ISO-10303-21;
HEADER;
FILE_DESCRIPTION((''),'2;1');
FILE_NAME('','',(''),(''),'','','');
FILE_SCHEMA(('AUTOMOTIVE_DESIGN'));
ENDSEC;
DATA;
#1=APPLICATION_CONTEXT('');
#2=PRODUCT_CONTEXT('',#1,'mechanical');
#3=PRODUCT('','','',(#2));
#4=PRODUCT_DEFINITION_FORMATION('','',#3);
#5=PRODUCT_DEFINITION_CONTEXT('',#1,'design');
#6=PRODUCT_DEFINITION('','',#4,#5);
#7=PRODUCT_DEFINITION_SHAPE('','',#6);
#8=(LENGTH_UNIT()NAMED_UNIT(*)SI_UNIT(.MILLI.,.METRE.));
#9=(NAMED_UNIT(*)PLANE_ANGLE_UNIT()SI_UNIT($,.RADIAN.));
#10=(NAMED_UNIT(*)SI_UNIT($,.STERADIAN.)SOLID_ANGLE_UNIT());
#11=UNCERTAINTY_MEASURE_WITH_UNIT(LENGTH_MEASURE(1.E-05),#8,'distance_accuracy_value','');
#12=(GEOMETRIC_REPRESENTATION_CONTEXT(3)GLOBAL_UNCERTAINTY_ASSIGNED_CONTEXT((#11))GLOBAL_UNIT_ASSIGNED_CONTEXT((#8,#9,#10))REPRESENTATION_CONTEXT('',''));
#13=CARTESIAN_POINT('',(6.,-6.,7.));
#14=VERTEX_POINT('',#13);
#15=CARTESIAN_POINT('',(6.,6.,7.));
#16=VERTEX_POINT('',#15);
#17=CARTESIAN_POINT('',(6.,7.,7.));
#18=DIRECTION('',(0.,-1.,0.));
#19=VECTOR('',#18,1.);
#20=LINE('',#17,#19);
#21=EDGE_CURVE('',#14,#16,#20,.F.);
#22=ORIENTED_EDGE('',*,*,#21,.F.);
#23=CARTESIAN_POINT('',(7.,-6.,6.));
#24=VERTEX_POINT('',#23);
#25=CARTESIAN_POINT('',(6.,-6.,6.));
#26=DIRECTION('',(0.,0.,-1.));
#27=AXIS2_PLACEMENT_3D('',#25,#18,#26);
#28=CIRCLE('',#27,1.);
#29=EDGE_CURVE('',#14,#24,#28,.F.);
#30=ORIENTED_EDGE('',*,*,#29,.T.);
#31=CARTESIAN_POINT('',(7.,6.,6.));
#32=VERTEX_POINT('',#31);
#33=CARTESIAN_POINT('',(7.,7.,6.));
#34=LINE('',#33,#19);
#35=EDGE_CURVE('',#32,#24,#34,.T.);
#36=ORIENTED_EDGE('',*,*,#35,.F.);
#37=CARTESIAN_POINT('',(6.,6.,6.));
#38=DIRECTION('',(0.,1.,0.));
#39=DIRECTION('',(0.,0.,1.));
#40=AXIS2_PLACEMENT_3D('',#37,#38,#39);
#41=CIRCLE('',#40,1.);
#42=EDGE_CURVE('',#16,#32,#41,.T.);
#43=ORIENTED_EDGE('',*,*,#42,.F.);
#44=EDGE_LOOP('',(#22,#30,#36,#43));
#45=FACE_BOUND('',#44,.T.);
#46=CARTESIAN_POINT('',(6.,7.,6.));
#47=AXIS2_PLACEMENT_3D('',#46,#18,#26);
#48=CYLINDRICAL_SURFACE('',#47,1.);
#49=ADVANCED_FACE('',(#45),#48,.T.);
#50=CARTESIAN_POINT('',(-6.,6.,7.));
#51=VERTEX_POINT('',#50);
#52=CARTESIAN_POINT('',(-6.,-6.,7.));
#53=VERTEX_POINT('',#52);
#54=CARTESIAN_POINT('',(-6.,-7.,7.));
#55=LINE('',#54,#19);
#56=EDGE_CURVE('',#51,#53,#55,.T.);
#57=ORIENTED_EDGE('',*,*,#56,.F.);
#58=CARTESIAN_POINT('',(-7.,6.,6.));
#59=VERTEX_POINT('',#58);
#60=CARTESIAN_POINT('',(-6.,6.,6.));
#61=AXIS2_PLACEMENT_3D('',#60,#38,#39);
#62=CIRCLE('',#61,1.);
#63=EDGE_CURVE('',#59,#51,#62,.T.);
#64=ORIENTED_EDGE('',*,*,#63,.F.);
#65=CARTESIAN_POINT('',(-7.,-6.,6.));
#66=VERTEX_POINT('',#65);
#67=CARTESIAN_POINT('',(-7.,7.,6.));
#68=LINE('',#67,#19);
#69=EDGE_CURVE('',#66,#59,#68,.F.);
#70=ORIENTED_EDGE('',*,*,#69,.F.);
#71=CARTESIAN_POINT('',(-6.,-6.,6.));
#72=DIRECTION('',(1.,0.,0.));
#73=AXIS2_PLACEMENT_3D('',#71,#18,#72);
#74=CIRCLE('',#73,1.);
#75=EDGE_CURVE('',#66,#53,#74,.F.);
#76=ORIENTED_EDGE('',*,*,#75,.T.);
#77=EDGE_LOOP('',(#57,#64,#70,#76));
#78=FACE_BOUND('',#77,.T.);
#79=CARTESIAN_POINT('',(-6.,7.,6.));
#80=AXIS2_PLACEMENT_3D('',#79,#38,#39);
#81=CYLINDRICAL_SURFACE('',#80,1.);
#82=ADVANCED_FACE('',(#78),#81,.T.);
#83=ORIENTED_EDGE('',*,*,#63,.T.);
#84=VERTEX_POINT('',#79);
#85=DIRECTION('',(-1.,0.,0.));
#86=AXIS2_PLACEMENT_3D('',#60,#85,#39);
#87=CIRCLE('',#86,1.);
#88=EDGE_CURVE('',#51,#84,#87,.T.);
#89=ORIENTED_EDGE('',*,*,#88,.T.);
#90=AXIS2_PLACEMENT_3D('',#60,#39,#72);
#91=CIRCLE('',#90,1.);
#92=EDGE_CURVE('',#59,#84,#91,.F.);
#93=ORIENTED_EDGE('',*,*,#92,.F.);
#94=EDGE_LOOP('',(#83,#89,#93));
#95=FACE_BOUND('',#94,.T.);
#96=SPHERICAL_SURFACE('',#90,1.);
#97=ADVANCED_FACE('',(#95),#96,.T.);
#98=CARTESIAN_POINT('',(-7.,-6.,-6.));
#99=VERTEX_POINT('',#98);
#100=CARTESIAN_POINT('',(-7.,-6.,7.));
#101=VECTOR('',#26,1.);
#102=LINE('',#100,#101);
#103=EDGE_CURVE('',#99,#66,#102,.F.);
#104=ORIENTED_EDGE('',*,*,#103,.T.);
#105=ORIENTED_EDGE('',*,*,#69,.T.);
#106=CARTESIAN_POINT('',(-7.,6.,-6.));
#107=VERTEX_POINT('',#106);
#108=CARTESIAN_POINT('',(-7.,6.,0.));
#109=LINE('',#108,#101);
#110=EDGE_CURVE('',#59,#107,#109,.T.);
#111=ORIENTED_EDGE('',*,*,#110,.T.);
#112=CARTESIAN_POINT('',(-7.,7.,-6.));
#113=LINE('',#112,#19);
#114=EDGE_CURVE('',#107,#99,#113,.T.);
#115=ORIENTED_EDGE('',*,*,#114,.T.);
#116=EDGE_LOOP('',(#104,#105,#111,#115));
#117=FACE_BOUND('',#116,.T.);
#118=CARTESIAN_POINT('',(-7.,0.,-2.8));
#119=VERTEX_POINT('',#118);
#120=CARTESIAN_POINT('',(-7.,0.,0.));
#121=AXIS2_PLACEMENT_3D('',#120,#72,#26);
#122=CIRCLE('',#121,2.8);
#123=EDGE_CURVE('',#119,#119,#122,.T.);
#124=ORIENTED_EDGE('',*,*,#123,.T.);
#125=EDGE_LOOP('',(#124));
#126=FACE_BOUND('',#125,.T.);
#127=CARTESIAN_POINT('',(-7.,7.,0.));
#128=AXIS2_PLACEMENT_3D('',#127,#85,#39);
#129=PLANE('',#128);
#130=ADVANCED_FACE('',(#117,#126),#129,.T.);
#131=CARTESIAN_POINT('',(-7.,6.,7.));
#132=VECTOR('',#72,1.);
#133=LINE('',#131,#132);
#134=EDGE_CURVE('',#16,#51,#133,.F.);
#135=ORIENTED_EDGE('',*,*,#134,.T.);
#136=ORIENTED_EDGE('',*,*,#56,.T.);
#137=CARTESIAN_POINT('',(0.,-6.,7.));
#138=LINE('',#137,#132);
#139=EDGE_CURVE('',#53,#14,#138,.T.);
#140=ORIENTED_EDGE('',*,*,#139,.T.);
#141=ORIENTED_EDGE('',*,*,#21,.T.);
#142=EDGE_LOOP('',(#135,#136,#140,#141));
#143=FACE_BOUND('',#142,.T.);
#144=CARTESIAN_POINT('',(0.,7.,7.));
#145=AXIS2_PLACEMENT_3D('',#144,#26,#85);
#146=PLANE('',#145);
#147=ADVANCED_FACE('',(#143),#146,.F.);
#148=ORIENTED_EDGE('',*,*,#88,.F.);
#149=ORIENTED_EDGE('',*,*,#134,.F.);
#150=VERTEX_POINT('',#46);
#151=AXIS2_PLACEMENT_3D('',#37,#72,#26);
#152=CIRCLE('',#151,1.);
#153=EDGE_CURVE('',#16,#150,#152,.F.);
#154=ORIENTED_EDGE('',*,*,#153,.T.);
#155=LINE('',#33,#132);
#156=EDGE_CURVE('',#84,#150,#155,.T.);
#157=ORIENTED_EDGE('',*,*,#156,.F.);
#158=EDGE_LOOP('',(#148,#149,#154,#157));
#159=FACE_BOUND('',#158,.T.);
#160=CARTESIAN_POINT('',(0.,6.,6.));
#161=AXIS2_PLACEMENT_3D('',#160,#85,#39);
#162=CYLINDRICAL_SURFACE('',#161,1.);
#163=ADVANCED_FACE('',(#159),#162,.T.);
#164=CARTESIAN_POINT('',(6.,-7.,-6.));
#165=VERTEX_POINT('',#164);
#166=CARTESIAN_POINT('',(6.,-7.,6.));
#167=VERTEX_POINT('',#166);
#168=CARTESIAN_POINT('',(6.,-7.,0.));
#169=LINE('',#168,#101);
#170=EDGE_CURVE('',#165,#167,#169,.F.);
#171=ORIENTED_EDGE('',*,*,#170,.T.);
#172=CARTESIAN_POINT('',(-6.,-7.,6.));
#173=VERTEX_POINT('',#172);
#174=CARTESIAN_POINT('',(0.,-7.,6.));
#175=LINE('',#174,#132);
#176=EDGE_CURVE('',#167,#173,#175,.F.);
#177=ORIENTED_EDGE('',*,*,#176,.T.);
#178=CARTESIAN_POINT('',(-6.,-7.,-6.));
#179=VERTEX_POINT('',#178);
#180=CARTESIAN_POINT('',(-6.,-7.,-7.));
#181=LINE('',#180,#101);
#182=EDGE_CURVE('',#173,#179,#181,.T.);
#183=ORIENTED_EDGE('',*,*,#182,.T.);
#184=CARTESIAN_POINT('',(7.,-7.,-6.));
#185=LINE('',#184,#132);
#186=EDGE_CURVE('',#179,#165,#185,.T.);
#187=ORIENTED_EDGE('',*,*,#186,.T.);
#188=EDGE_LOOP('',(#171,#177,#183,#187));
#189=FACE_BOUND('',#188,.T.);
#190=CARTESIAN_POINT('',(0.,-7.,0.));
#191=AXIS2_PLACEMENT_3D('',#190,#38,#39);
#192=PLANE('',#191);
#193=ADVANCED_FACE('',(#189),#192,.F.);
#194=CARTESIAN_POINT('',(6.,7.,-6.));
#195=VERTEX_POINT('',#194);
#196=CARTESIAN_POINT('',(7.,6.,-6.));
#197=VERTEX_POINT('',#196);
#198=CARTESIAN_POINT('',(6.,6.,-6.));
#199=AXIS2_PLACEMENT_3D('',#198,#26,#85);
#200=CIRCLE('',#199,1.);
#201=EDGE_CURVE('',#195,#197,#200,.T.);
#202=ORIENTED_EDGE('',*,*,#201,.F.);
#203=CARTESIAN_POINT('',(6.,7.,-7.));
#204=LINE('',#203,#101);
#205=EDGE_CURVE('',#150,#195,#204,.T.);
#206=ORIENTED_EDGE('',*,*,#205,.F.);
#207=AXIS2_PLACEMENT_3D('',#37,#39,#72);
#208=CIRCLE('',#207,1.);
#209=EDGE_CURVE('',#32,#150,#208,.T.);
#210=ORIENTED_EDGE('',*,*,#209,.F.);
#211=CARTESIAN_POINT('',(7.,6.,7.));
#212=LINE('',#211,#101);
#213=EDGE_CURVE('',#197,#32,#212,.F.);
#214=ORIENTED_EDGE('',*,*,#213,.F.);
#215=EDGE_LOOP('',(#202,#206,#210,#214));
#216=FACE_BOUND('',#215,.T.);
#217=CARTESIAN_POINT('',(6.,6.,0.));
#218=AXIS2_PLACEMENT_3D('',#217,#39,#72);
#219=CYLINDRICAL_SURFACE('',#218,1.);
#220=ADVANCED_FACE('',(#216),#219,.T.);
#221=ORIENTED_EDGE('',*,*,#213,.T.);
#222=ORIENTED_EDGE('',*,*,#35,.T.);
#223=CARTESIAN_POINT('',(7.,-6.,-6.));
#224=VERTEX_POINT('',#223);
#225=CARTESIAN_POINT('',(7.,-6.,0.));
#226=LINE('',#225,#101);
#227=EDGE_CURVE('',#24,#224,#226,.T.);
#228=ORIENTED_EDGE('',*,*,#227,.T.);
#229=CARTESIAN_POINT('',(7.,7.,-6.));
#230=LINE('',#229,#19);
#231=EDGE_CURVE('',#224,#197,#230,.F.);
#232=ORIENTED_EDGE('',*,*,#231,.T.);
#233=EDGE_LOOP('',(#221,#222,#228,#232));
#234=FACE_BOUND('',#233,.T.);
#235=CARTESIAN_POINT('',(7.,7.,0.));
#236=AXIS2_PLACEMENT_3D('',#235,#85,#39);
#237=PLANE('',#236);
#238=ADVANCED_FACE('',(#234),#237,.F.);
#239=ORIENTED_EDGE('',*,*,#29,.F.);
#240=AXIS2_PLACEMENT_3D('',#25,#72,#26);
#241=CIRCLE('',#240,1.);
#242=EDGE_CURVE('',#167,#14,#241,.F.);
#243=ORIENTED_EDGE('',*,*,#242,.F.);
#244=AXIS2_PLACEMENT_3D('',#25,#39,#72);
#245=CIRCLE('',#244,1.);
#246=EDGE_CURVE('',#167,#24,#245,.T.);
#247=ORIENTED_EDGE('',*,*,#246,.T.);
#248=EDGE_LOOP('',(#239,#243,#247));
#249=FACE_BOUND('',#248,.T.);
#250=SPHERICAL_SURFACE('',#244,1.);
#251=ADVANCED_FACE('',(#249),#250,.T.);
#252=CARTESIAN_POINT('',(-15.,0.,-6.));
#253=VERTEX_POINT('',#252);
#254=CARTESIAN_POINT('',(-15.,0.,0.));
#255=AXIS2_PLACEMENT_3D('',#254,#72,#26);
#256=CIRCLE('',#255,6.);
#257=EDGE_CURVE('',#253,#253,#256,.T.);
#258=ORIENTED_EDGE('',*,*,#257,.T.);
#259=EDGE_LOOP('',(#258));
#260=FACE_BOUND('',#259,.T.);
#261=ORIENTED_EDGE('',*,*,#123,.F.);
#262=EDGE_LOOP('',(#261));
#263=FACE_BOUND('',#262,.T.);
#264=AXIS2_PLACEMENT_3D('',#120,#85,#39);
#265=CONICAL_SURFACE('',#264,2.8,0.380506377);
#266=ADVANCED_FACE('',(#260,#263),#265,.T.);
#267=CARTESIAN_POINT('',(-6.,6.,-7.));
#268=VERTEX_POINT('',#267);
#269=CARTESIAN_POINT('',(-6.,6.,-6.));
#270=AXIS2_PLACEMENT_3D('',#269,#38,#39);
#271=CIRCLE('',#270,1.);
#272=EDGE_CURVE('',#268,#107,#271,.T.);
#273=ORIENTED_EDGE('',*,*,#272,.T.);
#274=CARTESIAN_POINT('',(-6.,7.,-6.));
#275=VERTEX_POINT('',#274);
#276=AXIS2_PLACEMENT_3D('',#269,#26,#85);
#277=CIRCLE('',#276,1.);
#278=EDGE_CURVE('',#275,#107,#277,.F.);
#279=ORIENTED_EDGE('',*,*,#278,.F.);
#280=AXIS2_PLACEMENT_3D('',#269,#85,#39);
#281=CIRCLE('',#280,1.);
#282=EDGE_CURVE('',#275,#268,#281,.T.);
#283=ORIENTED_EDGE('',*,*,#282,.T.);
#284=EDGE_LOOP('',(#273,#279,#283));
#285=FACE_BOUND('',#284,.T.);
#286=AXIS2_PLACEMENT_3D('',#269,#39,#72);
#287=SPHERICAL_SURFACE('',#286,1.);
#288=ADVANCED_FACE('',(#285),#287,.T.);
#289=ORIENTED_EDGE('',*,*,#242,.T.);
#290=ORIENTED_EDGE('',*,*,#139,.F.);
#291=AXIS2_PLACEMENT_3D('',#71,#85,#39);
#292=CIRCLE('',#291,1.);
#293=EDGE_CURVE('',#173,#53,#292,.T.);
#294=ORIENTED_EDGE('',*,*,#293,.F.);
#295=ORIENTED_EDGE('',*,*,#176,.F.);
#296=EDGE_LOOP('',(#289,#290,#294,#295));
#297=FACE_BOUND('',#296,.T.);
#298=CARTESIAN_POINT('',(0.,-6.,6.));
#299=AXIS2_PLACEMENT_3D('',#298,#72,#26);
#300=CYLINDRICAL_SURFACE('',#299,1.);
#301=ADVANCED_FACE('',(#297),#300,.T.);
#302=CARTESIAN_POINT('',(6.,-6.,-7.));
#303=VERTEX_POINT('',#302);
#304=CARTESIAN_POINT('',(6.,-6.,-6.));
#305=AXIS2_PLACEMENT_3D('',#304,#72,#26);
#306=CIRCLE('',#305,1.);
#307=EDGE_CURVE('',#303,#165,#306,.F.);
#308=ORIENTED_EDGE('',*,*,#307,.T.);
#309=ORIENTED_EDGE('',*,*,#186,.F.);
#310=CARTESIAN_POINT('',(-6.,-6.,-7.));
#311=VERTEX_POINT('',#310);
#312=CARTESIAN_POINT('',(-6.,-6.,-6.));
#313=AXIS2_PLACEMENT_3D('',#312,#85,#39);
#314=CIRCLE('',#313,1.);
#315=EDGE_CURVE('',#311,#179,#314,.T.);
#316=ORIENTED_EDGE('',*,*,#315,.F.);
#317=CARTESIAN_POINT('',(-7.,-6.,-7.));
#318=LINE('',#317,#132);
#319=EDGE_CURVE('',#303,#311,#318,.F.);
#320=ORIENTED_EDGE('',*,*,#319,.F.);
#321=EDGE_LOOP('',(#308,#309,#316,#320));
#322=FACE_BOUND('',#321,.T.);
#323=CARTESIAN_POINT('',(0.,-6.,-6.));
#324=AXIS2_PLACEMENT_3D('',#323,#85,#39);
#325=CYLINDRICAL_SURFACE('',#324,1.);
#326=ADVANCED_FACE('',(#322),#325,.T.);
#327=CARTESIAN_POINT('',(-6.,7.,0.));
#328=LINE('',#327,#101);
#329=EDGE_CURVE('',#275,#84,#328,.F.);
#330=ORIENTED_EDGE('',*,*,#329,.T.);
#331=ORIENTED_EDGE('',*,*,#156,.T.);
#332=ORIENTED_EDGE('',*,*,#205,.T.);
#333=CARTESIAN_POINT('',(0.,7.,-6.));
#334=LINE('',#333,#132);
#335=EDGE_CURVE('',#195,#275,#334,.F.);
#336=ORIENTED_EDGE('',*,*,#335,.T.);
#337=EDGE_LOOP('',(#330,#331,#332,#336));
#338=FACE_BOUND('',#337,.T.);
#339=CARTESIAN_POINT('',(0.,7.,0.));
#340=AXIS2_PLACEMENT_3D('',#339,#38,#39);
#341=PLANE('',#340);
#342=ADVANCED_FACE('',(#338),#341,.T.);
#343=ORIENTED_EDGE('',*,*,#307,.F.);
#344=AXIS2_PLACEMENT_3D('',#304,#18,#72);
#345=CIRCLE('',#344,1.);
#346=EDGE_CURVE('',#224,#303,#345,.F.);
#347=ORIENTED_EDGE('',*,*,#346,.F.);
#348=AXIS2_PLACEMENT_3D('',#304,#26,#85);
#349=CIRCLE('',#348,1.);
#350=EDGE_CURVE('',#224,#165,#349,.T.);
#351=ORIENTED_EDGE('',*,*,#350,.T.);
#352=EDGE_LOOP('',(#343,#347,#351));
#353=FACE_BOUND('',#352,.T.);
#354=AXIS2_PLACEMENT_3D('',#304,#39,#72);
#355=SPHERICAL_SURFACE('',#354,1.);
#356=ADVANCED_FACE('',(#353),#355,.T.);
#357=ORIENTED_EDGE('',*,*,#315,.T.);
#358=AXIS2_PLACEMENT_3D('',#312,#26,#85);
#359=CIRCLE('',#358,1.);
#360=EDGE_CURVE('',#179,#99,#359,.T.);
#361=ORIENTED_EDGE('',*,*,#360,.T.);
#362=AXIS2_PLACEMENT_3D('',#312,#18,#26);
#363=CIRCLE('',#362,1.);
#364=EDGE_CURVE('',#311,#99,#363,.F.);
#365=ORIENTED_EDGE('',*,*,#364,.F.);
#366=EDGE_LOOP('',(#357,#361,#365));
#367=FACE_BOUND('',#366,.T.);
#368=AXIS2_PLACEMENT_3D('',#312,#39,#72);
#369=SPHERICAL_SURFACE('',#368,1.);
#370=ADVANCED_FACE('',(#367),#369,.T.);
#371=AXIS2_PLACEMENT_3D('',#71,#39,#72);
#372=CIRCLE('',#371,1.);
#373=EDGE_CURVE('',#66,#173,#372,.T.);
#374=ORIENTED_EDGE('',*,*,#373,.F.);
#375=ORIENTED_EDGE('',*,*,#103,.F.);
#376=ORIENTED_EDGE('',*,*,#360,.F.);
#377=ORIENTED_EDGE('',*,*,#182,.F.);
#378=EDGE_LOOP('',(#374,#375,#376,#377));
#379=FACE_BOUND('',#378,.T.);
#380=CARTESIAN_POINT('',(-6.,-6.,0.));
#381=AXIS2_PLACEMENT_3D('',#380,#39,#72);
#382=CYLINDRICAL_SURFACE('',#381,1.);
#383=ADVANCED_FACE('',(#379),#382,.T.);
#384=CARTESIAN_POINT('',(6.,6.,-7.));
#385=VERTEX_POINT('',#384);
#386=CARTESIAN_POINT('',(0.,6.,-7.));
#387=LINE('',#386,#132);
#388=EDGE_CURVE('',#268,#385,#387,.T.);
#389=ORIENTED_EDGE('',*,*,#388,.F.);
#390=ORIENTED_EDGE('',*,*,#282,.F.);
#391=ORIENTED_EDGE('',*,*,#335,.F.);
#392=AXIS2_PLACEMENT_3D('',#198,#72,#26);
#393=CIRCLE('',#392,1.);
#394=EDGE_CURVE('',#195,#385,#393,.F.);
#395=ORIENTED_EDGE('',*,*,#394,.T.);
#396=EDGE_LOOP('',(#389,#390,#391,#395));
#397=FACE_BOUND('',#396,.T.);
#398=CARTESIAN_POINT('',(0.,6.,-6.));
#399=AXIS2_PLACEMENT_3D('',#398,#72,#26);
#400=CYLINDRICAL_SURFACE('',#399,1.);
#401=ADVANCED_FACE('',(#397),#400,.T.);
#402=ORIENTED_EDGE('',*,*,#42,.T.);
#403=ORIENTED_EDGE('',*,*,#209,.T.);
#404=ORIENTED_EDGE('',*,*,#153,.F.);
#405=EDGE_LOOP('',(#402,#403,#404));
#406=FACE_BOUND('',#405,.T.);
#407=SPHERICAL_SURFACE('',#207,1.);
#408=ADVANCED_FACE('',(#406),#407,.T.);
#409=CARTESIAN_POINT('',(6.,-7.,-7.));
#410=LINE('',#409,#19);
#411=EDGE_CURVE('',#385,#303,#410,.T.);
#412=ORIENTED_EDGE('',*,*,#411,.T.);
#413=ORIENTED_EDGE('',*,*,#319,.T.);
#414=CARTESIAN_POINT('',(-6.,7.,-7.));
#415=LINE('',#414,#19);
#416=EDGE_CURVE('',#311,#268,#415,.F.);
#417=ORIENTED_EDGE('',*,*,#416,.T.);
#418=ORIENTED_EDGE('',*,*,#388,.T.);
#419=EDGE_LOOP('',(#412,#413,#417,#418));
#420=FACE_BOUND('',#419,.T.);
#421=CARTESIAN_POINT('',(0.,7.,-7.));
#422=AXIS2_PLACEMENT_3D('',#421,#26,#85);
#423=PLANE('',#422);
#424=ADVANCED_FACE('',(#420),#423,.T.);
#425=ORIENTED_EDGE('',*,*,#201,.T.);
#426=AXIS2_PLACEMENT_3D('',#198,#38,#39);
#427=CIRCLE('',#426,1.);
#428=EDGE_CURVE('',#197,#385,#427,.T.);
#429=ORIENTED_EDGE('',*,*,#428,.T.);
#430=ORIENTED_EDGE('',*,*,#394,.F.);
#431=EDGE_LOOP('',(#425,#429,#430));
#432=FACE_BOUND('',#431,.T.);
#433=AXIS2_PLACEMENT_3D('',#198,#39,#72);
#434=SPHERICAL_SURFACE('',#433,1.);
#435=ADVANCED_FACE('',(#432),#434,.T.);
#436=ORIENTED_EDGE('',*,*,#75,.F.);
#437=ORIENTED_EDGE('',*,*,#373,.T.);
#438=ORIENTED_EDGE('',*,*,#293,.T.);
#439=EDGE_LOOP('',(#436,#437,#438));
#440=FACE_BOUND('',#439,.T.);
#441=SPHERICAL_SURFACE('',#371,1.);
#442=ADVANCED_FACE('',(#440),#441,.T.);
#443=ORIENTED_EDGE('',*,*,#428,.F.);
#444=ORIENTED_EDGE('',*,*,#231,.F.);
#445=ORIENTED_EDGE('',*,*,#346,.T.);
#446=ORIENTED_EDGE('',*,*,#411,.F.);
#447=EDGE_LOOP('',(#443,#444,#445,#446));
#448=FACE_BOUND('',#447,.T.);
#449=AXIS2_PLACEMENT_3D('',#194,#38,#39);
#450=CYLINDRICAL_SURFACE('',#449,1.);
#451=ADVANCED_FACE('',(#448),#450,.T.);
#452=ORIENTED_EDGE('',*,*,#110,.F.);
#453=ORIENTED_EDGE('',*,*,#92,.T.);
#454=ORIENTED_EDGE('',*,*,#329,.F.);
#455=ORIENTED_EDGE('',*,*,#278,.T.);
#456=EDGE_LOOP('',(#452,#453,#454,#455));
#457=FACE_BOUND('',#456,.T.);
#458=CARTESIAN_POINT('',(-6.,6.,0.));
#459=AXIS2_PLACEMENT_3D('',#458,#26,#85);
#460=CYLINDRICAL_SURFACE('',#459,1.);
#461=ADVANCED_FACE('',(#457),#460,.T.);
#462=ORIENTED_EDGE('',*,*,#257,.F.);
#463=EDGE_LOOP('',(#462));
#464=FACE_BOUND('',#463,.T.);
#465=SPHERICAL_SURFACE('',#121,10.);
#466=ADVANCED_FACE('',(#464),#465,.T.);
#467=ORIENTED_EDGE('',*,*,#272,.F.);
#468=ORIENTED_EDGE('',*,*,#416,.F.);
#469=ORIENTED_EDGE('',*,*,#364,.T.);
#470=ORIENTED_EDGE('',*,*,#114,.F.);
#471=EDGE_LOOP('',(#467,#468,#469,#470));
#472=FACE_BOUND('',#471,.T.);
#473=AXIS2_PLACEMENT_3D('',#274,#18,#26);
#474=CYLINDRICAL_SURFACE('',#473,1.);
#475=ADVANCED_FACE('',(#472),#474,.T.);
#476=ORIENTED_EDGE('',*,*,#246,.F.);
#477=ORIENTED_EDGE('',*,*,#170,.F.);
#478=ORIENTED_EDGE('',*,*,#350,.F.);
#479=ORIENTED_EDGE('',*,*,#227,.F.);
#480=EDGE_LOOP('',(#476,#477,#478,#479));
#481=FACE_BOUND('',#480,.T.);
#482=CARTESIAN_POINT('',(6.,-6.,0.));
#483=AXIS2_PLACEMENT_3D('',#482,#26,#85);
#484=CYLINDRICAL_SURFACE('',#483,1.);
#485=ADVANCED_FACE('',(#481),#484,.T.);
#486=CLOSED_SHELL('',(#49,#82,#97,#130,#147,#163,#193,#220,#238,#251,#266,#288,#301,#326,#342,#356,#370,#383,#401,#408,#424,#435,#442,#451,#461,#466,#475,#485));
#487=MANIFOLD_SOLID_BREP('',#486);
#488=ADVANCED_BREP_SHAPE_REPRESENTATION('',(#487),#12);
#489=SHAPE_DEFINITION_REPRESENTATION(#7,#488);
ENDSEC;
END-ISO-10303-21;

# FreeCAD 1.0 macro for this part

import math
import FreeCAD as App
import Part
import Sketcher

V = App.Vector


def edges_at(feature, points):
    """Names of the edges that pass closest to the given points."""
    edges = feature.Shape.Edges
    near = lambda p: min(range(len(edges)), key=lambda i: edges[i].distToShape(Part.Vertex(*p))[0])
    return sorted({f"Edge{near(p) + 1}" for p in points})


def add_polygon(sketch, points):
    """Adds a closed chain of lines whose ends are joined by coincident constraints."""
    first, n = sketch.GeometryCount, len(points)
    for a, b in zip(points, points[1:] + points[:1]):
        sketch.addGeometry(Part.LineSegment(App.Vector(*a, 0), App.Vector(*b, 0)), False)
    for i in range(n):
        sketch.addConstraint(Sketcher.Constraint("Coincident", first + i, 2, first + (i + 1) % n, 1))

doc = App.newDocument("Part")
body = doc.addObject("PartDesign::Body", "Body")

# Sketch on XZ plane
sketch1 = body.newObject("Sketcher::SketchObject", "Sketch")
sketch1.AttachmentSupport = (doc.getObject("XZ_Plane"), [""])
sketch1.MapMode = "FlatFace"
sketch1.addGeometry([
    Part.LineSegment(V(-7, 0, 0), V(-7, -2.8, 0)),
    Part.LineSegment(V(-7, -2.8, 0), V(-15, -6, 0)),
    Part.ArcOfCircle(Part.Circle(V(-7, 0, 0), V(0, 0, 1), 10), math.radians(180), math.radians(216.869898)),
    Part.LineSegment(V(-17, 0, 0), V(-7, 0, 0)),
], False)
sketch1.addConstraint([
    Sketcher.Constraint("Coincident", 0, 2, 1, 1),
    Sketcher.Constraint("Coincident", 1, 2, 2, 2),
    Sketcher.Constraint("Coincident", 2, 1, 3, 1),
    Sketcher.Constraint("Coincident", 3, 2, 0, 1),
    Sketcher.Constraint("Vertical", 0),
    Sketcher.Constraint("Horizontal", 3),
    Sketcher.Constraint("Coincident", 3, 2, 2, 3),
    Sketcher.Constraint("PointOnObject", 2, 3, -1),
    Sketcher.Constraint("Radius", 2, 10.0),
    Sketcher.Constraint("DistanceY", 0, 2, 0, 1, 2.8),
    Sketcher.Constraint("DistanceX", 2, 3, -1, 1, 7.0),
    Sketcher.Constraint("DistanceX", 1, 2, -1, 1, 15.0),
])
revolution = body.newObject("PartDesign::Revolution", "Revolution")
revolution.Profile = sketch1
revolution.ReferenceAxis = (sketch1, ["H_Axis"])
revolution.Angle = 360

# Sketch on XZ plane
sketch2 = body.newObject("Sketcher::SketchObject", "Sketch001")
sketch2.AttachmentSupport = (doc.getObject("XZ_Plane"), [""])
sketch2.MapMode = "FlatFace"
add_polygon(sketch2, [(-7, 7), (7, 7), (7, -7), (-7, -7)])  # lines 0-3
sketch2.addConstraint([
    Sketcher.Constraint("Horizontal", 0),
    Sketcher.Constraint("Vertical", 1),
    Sketcher.Constraint("Horizontal", 2),
    Sketcher.Constraint("Vertical", 3),
    Sketcher.Constraint("Symmetric", 0, 2, 2, 2, -1, 1),
    Sketcher.Constraint("Equal", 2, 1),
    Sketcher.Constraint("DistanceX", 0, 1, 0, 2, 14.0),
])
pad1 = body.newObject("PartDesign::Pad", "Pad")
pad1.Profile = sketch2
pad1.Length = 14
pad1.Midplane = True
doc.recompute()

fillet = body.newObject("PartDesign::Fillet", "Fillet")
fillet.Base = (pad1, edges_at(pad1, [
    (0, -7, 7),
    (-7, 0, 7),
    (7, -7, 0),
    (7, 0, 7),
    (0, 7, -7),
    (7, 0, -7),
    (-7, 7, 0),
    (-7, 0, -7),
    (0, 7, 7),
    (7, 7, 0),
    (-7, -7, 0),
    (0, -7, -7),
]))
fillet.Radius = 1

doc.recompute()
